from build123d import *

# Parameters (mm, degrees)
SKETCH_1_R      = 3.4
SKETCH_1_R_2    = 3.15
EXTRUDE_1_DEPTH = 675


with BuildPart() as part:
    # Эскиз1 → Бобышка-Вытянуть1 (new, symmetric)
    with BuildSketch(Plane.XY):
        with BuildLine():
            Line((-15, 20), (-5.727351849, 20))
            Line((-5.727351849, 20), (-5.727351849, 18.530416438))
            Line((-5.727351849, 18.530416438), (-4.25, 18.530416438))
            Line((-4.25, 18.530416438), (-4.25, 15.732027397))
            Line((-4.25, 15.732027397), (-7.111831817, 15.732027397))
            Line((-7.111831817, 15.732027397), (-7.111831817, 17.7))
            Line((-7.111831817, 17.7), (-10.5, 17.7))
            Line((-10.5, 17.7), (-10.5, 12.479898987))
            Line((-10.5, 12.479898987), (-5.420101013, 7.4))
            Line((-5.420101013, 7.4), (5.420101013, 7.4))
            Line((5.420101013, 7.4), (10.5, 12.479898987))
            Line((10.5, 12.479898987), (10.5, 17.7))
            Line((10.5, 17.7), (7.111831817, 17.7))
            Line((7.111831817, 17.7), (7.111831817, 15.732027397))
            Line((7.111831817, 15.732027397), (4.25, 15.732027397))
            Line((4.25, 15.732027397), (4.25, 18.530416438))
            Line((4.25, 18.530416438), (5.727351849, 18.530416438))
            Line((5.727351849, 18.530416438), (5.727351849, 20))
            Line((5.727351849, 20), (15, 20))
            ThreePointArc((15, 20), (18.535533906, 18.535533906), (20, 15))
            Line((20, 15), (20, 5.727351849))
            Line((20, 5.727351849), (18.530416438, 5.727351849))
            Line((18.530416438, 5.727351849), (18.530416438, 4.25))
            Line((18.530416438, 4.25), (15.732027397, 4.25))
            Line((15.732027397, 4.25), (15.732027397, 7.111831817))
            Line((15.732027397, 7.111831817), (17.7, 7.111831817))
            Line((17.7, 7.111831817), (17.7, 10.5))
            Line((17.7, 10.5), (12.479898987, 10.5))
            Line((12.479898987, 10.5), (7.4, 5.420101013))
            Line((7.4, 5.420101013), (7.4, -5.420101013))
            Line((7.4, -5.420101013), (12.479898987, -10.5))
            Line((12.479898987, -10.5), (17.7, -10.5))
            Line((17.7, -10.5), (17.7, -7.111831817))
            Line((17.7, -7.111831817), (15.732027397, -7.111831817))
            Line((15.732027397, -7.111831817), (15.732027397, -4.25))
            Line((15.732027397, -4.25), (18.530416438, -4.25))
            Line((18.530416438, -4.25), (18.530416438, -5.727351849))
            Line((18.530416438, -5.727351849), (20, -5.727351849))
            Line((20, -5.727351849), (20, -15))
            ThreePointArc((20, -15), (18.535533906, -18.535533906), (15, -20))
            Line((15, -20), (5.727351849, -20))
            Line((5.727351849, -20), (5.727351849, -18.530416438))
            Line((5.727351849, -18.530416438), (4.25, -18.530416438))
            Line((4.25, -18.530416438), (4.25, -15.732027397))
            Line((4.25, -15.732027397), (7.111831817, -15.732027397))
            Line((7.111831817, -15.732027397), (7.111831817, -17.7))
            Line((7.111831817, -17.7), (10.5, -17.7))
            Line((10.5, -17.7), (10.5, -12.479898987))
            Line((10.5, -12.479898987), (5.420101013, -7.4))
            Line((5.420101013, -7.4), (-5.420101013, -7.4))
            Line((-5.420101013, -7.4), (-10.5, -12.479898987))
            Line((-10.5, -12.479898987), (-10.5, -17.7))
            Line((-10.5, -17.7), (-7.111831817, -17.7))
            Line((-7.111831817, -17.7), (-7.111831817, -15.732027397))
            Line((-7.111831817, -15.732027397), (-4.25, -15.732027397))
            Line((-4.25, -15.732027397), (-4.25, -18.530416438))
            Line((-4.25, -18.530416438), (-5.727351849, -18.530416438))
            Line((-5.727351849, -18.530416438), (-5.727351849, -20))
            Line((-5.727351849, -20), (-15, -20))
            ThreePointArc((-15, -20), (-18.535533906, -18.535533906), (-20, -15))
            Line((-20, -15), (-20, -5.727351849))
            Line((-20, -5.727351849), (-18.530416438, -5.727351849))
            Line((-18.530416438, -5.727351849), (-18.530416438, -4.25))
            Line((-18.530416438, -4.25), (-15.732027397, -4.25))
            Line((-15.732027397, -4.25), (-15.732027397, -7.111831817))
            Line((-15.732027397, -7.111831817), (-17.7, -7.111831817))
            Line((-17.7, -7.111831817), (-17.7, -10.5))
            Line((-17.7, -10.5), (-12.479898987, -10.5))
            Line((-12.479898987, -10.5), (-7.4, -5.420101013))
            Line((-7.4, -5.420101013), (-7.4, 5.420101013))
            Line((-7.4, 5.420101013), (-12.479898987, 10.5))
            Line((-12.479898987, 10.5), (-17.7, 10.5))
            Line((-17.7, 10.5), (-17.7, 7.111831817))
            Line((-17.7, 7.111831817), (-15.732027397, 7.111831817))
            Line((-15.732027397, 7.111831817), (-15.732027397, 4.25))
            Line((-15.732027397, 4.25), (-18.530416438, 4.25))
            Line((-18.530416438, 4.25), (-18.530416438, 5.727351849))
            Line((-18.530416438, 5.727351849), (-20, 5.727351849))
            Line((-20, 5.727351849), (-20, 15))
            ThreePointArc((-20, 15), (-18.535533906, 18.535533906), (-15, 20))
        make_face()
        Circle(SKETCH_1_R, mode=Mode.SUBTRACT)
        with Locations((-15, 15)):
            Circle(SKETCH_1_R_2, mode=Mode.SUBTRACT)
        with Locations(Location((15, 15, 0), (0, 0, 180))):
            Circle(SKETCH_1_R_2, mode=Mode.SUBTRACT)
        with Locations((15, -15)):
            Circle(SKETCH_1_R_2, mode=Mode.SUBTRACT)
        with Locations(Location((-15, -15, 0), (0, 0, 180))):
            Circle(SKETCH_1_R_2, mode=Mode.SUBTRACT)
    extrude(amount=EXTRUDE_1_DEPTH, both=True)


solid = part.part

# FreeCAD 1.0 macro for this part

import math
import FreeCAD as App
import Part
import Sketcher

doc = App.newDocument("Part")
body = doc.addObject("PartDesign::Body", "Body")

# Sketch on XY plane
sketch1 = body.newObject("Sketcher::SketchObject", "Sketch")
sketch1.AttachmentSupport = (doc.getObject("XY_Plane"), [""])
sketch1.MapMode = "FlatFace"
sketch1.addGeometry(Part.LineSegment(App.Vector(-5.7, 20, 0), App.Vector(-15, 20, 0)), False)
sketch1.addGeometry(Part.ArcOfCircle(Part.Circle(App.Vector(-15, 15, 0), App.Vector(0, 0, 1), 5), math.radians(90), math.radians(180)), False)
sketch1.addGeometry(Part.LineSegment(App.Vector(-20, 15, 0), App.Vector(-20, 5.7, 0)), False)
sketch1.addGeometry(Part.LineSegment(App.Vector(-20, 5.7, 0), App.Vector(-18.5, 5.7, 0)), False)
sketch1.addGeometry(Part.LineSegment(App.Vector(-18.5, 5.7, 0), App.Vector(-18.5, 4.2, 0)), False)
sketch1.addGeometry(Part.LineSegment(App.Vector(-18.5, 4.2, 0), App.Vector(-15.7, 4.2, 0)), False)
sketch1.addGeometry(Part.LineSegment(App.Vector(-15.7, 4.2, 0), App.Vector(-15.7, 7.1, 0)), False)
sketch1.addGeometry(Part.LineSegment(App.Vector(-15.7, 7.1, 0), App.Vector(-17.7, 7.1, 0)), False)
sketch1.addGeometry(Part.LineSegment(App.Vector(-17.7, 7.1, 0), App.Vector(-17.7, 10.5, 0)), False)
sketch1.addGeometry(Part.LineSegment(App.Vector(-17.7, 10.5, 0), App.Vector(-12.5, 10.5, 0)), False)
sketch1.addGeometry(Part.LineSegment(App.Vector(-12.5, 10.5, 0), App.Vector(-7.4, 5.4, 0)), False)
sketch1.addGeometry(Part.LineSegment(App.Vector(-7.4, 5.4, 0), App.Vector(-7.4, -5.4, 0)), False)
sketch1.addGeometry(Part.LineSegment(App.Vector(-7.4, -5.4, 0), App.Vector(-12.5, -10.5, 0)), False)
sketch1.addGeometry(Part.LineSegment(App.Vector(-12.5, -10.5, 0), App.Vector(-17.7, -10.5, 0)), False)
sketch1.addGeometry(Part.LineSegment(App.Vector(-17.7, -10.5, 0), App.Vector(-17.7, -7.1, 0)), False)
sketch1.addGeometry(Part.LineSegment(App.Vector(-17.7, -7.1, 0), App.Vector(-15.7, -7.1, 0)), False)
sketch1.addGeometry(Part.LineSegment(App.Vector(-15.7, -7.1, 0), App.Vector(-15.7, -4.2, 0)), False)
sketch1.addGeometry(Part.LineSegment(App.Vector(-15.7, -4.2, 0), App.Vector(-18.5, -4.2, 0)), False)
sketch1.addGeometry(Part.LineSegment(App.Vector(-18.5, -4.2, 0), App.Vector(-18.5, -5.7, 0)), False)
sketch1.addGeometry(Part.LineSegment(App.Vector(-18.5, -5.7, 0), App.Vector(-20, -5.7, 0)), False)
sketch1.addGeometry(Part.LineSegment(App.Vector(-20, -5.7, 0), App.Vector(-20, -15, 0)), False)
sketch1.addGeometry(Part.ArcOfCircle(Part.Circle(App.Vector(-15, -15, 0), App.Vector(0, 0, 1), 5), math.radians(180), math.radians(270)), False)
sketch1.addGeometry(Part.LineSegment(App.Vector(-15, -20, 0), App.Vector(-5.7, -20, 0)), False)
sketch1.addGeometry(Part.LineSegment(App.Vector(-5.7, -20, 0), App.Vector(-5.7, -18.5, 0)), False)
sketch1.addGeometry(Part.LineSegment(App.Vector(-5.7, -18.5, 0), App.Vector(-4.2, -18.5, 0)), False)
sketch1.addGeometry(Part.LineSegment(App.Vector(-4.2, -18.5, 0), App.Vector(-4.2, -15.7, 0)), False)
sketch1.addGeometry(Part.LineSegment(App.Vector(-4.2, -15.7, 0), App.Vector(-7.1, -15.7, 0)), False)
sketch1.addGeometry(Part.LineSegment(App.Vector(-7.1, -15.7, 0), App.Vector(-7.1, -17.7, 0)), False)
sketch1.addGeometry(Part.LineSegment(App.Vector(-7.1, -17.7, 0), App.Vector(-10.5, -17.7, 0)), False)
sketch1.addGeometry(Part.LineSegment(App.Vector(-10.5, -17.7, 0), App.Vector(-10.5, -12.5, 0)), False)
sketch1.addGeometry(Part.LineSegment(App.Vector(-10.5, -12.5, 0), App.Vector(-5.4, -7.4, 0)), False)
sketch1.addGeometry(Part.LineSegment(App.Vector(-5.4, -7.4, 0), App.Vector(5.4, -7.4, 0)), False)
sketch1.addGeometry(Part.LineSegment(App.Vector(5.4, -7.4, 0), App.Vector(10.5, -12.5, 0)), False)
sketch1.addGeometry(Part.LineSegment(App.Vector(10.5, -12.5, 0), App.Vector(10.5, -17.7, 0)), False)
sketch1.addGeometry(Part.LineSegment(App.Vector(10.5, -17.7, 0), App.Vector(7.1, -17.7, 0)), False)
sketch1.addGeometry(Part.LineSegment(App.Vector(7.1, -17.7, 0), App.Vector(7.1, -15.7, 0)), False)
sketch1.addGeometry(Part.LineSegment(App.Vector(7.1, -15.7, 0), App.Vector(4.2, -15.7, 0)), False)
sketch1.addGeometry(Part.LineSegment(App.Vector(4.2, -15.7, 0), App.Vector(4.2, -18.5, 0)), False)
sketch1.addGeometry(Part.LineSegment(App.Vector(4.2, -18.5, 0), App.Vector(5.7, -18.5, 0)), False)
sketch1.addGeometry(Part.LineSegment(App.Vector(5.7, -18.5, 0), App.Vector(5.7, -20, 0)), False)
sketch1.addGeometry(Part.LineSegment(App.Vector(5.7, -20, 0), App.Vector(15, -20, 0)), False)
sketch1.addGeometry(Part.ArcOfCircle(Part.Circle(App.Vector(15, -15, 0), App.Vector(0, 0, 1), 5), math.radians(-90), math.radians(0)), False)
sketch1.addGeometry(Part.LineSegment(App.Vector(20, -15, 0), App.Vector(20, -5.7, 0)), False)
sketch1.addGeometry(Part.LineSegment(App.Vector(20, -5.7, 0), App.Vector(18.5, -5.7, 0)), False)
sketch1.addGeometry(Part.LineSegment(App.Vector(18.5, -5.7, 0), App.Vector(18.5, -4.2, 0)), False)
sketch1.addGeometry(Part.LineSegment(App.Vector(18.5, -4.2, 0), App.Vector(15.7, -4.2, 0)), False)
sketch1.addGeometry(Part.LineSegment(App.Vector(15.7, -4.2, 0), App.Vector(15.7, -7.1, 0)), False)
sketch1.addGeometry(Part.LineSegment(App.Vector(15.7, -7.1, 0), App.Vector(17.7, -7.1, 0)), False)
sketch1.addGeometry(Part.LineSegment(App.Vector(17.7, -7.1, 0), App.Vector(17.7, -10.5, 0)), False)
sketch1.addGeometry(Part.LineSegment(App.Vector(17.7, -10.5, 0), App.Vector(12.5, -10.5, 0)), False)
sketch1.addGeometry(Part.LineSegment(App.Vector(12.5, -10.5, 0), App.Vector(7.4, -5.4, 0)), False)
sketch1.addGeometry(Part.LineSegment(App.Vector(7.4, -5.4, 0), App.Vector(7.4, 5.4, 0)), False)
sketch1.addGeometry(Part.LineSegment(App.Vector(7.4, 5.4, 0), App.Vector(12.5, 10.5, 0)), False)
sketch1.addGeometry(Part.LineSegment(App.Vector(12.5, 10.5, 0), App.Vector(17.7, 10.5, 0)), False)
sketch1.addGeometry(Part.LineSegment(App.Vector(17.7, 10.5, 0), App.Vector(17.7, 7.1, 0)), False)
sketch1.addGeometry(Part.LineSegment(App.Vector(17.7, 7.1, 0), App.Vector(15.7, 7.1, 0)), False)
sketch1.addGeometry(Part.LineSegment(App.Vector(15.7, 7.1, 0), App.Vector(15.7, 4.2, 0)), False)
sketch1.addGeometry(Part.LineSegment(App.Vector(15.7, 4.2, 0), App.Vector(18.5, 4.2, 0)), False)
sketch1.addGeometry(Part.LineSegment(App.Vector(18.5, 4.2, 0), App.Vector(18.5, 5.7, 0)), False)
sketch1.addGeometry(Part.LineSegment(App.Vector(18.5, 5.7, 0), App.Vector(20, 5.7, 0)), False)
sketch1.addGeometry(Part.LineSegment(App.Vector(20, 5.7, 0), App.Vector(20, 15, 0)), False)
sketch1.addGeometry(Part.ArcOfCircle(Part.Circle(App.Vector(15, 15, 0), App.Vector(0, 0, 1), 5), math.radians(0), math.radians(90)), False)
sketch1.addGeometry(Part.LineSegment(App.Vector(15, 20, 0), App.Vector(5.7, 20, 0)), False)
sketch1.addGeometry(Part.LineSegment(App.Vector(5.7, 20, 0), App.Vector(5.7, 18.5, 0)), False)
sketch1.addGeometry(Part.LineSegment(App.Vector(5.7, 18.5, 0), App.Vector(4.2, 18.5, 0)), False)
sketch1.addGeometry(Part.LineSegment(App.Vector(4.2, 18.5, 0), App.Vector(4.2, 15.7, 0)), False)
sketch1.addGeometry(Part.LineSegment(App.Vector(4.2, 15.7, 0), App.Vector(7.1, 15.7, 0)), False)
sketch1.addGeometry(Part.LineSegment(App.Vector(7.1, 15.7, 0), App.Vector(7.1, 17.7, 0)), False)
sketch1.addGeometry(Part.LineSegment(App.Vector(7.1, 17.7, 0), App.Vector(10.5, 17.7, 0)), False)
sketch1.addGeometry(Part.LineSegment(App.Vector(10.5, 17.7, 0), App.Vector(10.5, 12.5, 0)), False)
sketch1.addGeometry(Part.LineSegment(App.Vector(10.5, 12.5, 0), App.Vector(5.4, 7.4, 0)), False)
sketch1.addGeometry(Part.LineSegment(App.Vector(5.4, 7.4, 0), App.Vector(-5.4, 7.4, 0)), False)
sketch1.addGeometry(Part.LineSegment(App.Vector(-5.4, 7.4, 0), App.Vector(-10.5, 12.5, 0)), False)
sketch1.addGeometry(Part.LineSegment(App.Vector(-10.5, 12.5, 0), App.Vector(-10.5, 17.7, 0)), False)
sketch1.addGeometry(Part.LineSegment(App.Vector(-10.5, 17.7, 0), App.Vector(-7.1, 17.7, 0)), False)
sketch1.addGeometry(Part.LineSegment(App.Vector(-7.1, 17.7, 0), App.Vector(-7.1, 15.7, 0)), False)
sketch1.addGeometry(Part.LineSegment(App.Vector(-7.1, 15.7, 0), App.Vector(-4.2, 15.7, 0)), False)
sketch1.addGeometry(Part.LineSegment(App.Vector(-4.2, 15.7, 0), App.Vector(-4.2, 18.5, 0)), False)
sketch1.addGeometry(Part.LineSegment(App.Vector(-4.2, 18.5, 0), App.Vector(-5.7, 18.5, 0)), False)
sketch1.addGeometry(Part.LineSegment(App.Vector(-5.7, 18.5, 0), App.Vector(-5.7, 20, 0)), False)
sketch1.addGeometry(Part.Circle(App.Vector(15, -15, 0), App.Vector(0, 0, 1), 3.1), False)
sketch1.addGeometry(Part.Circle(App.Vector(-15, -15, 0), App.Vector(0, 0, 1), 3.1), False)
sketch1.addGeometry(Part.Circle(App.Vector(15, 15, 0), App.Vector(0, 0, 1), 3.1), False)
sketch1.addGeometry(Part.Circle(App.Vector(0, 0, 0), App.Vector(0, 0, 1), 3.4), False)
sketch1.addGeometry(Part.Circle(App.Vector(-15, 15, 0), App.Vector(0, 0, 1), 3.1), False)
sketch1.addConstraint(Sketcher.Constraint("Tangent", 0, 2, 1, 1))
sketch1.addConstraint(Sketcher.Constraint("Tangent", 1, 2, 2, 1))
sketch1.addConstraint(Sketcher.Constraint("Coincident", 2, 2, 3, 1))
sketch1.addConstraint(Sketcher.Constraint("Coincident", 3, 2, 4, 1))
sketch1.addConstraint(Sketcher.Constraint("Coincident", 4, 2, 5, 1))
sketch1.addConstraint(Sketcher.Constraint("Coincident", 5, 2, 6, 1))
sketch1.addConstraint(Sketcher.Constraint("Coincident", 6, 2, 7, 1))
sketch1.addConstraint(Sketcher.Constraint("Coincident", 7, 2, 8, 1))
sketch1.addConstraint(Sketcher.Constraint("Coincident", 8, 2, 9, 1))
sketch1.addConstraint(Sketcher.Constraint("Coincident", 9, 2, 10, 1))
sketch1.addConstraint(Sketcher.Constraint("Coincident", 10, 2, 11, 1))
sketch1.addConstraint(Sketcher.Constraint("Coincident", 11, 2, 12, 1))
sketch1.addConstraint(Sketcher.Constraint("Coincident", 12, 2, 13, 1))
sketch1.addConstraint(Sketcher.Constraint("Coincident", 13, 2, 14, 1))
sketch1.addConstraint(Sketcher.Constraint("Coincident", 14, 2, 15, 1))
sketch1.addConstraint(Sketcher.Constraint("Coincident", 15, 2, 16, 1))
sketch1.addConstraint(Sketcher.Constraint("Coincident", 16, 2, 17, 1))
sketch1.addConstraint(Sketcher.Constraint("Coincident", 17, 2, 18, 1))
sketch1.addConstraint(Sketcher.Constraint("Coincident", 18, 2, 19, 1))
sketch1.addConstraint(Sketcher.Constraint("Coincident", 19, 2, 20, 1))
sketch1.addConstraint(Sketcher.Constraint("Tangent", 20, 2, 21, 1))
sketch1.addConstraint(Sketcher.Constraint("Tangent", 21, 2, 22, 1))
sketch1.addConstraint(Sketcher.Constraint("Coincident", 22, 2, 23, 1))
sketch1.addConstraint(Sketcher.Constraint("Coincident", 23, 2, 24, 1))
sketch1.addConstraint(Sketcher.Constraint("Coincident", 24, 2, 25, 1))
sketch1.addConstraint(Sketcher.Constraint("Coincident", 25, 2, 26, 1))
sketch1.addConstraint(Sketcher.Constraint("Coincident", 26, 2, 27, 1))
sketch1.addConstraint(Sketcher.Constraint("Coincident", 27, 2, 28, 1))
sketch1.addConstraint(Sketcher.Constraint("Coincident", 28, 2, 29, 1))
sketch1.addConstraint(Sketcher.Constraint("Coincident", 29, 2, 30, 1))
sketch1.addConstraint(Sketcher.Constraint("Coincident", 30, 2, 31, 1))
sketch1.addConstraint(Sketcher.Constraint("Coincident", 31, 2, 32, 1))
sketch1.addConstraint(Sketcher.Constraint("Coincident", 32, 2, 33, 1))
sketch1.addConstraint(Sketcher.Constraint("Coincident", 33, 2, 34, 1))
sketch1.addConstraint(Sketcher.Constraint("Coincident", 34, 2, 35, 1))
sketch1.addConstraint(Sketcher.Constraint("Coincident", 35, 2, 36, 1))
sketch1.addConstraint(Sketcher.Constraint("Coincident", 36, 2, 37, 1))
sketch1.addConstraint(Sketcher.Constraint("Coincident", 37, 2, 38, 1))
sketch1.addConstraint(Sketcher.Constraint("Coincident", 38, 2, 39, 1))
sketch1.addConstraint(Sketcher.Constraint("Coincident", 39, 2, 40, 1))
sketch1.addConstraint(Sketcher.Constraint("Tangent", 40, 2, 41, 1))
sketch1.addConstraint(Sketcher.Constraint("Tangent", 41, 2, 42, 1))
sketch1.addConstraint(Sketcher.Constraint("Coincident", 42, 2, 43, 1))
sketch1.addConstraint(Sketcher.Constraint("Coincident", 43, 2, 44, 1))
sketch1.addConstraint(Sketcher.Constraint("Coincident", 44, 2, 45, 1))
sketch1.addConstraint(Sketcher.Constraint("Coincident", 45, 2, 46, 1))
sketch1.addConstraint(Sketcher.Constraint("Coincident", 46, 2, 47, 1))
sketch1.addConstraint(Sketcher.Constraint("Coincident", 47, 2, 48, 1))
sketch1.addConstraint(Sketcher.Constraint("Coincident", 48, 2, 49, 1))
sketch1.addConstraint(Sketcher.Constraint("Coincident", 49, 2, 50, 1))
sketch1.addConstraint(Sketcher.Constraint("Coincident", 50, 2, 51, 1))
sketch1.addConstraint(Sketcher.Constraint("Coincident", 51, 2, 52, 1))
sketch1.addConstraint(Sketcher.Constraint("Coincident", 52, 2, 53, 1))
sketch1.addConstraint(Sketcher.Constraint("Coincident", 53, 2, 54, 1))
sketch1.addConstraint(Sketcher.Constraint("Coincident", 54, 2, 55, 1))
sketch1.addConstraint(Sketcher.Constraint("Coincident", 55, 2, 56, 1))
sketch1.addConstraint(Sketcher.Constraint("Coincident", 56, 2, 57, 1))
sketch1.addConstraint(Sketcher.Constraint("Coincident", 57, 2, 58, 1))
sketch1.addConstraint(Sketcher.Constraint("Coincident", 58, 2, 59, 1))
sketch1.addConstraint(Sketcher.Constraint("Coincident", 59, 2, 60, 1))
sketch1.addConstraint(Sketcher.Constraint("Tangent", 60, 2, 61, 1))
sketch1.addConstraint(Sketcher.Constraint("Tangent", 61, 2, 62, 1))
sketch1.addConstraint(Sketcher.Constraint("Coincident", 62, 2, 63, 1))
sketch1.addConstraint(Sketcher.Constraint("Coincident", 63, 2, 64, 1))
sketch1.addConstraint(Sketcher.Constraint("Coincident", 64, 2, 65, 1))
sketch1.addConstraint(Sketcher.Constraint("Coincident", 65, 2, 66, 1))
sketch1.addConstraint(Sketcher.Constraint("Coincident", 66, 2, 67, 1))
sketch1.addConstraint(Sketcher.Constraint("Coincident", 67, 2, 68, 1))
sketch1.addConstraint(Sketcher.Constraint("Coincident", 68, 2, 69, 1))
sketch1.addConstraint(Sketcher.Constraint("Coincident", 69, 2, 70, 1))
sketch1.addConstraint(Sketcher.Constraint("Coincident", 70, 2, 71, 1))
sketch1.addConstraint(Sketcher.Constraint("Coincident", 71, 2, 72, 1))
sketch1.addConstraint(Sketcher.Constraint("Coincident", 72, 2, 73, 1))
sketch1.addConstraint(Sketcher.Constraint("Coincident", 73, 2, 74, 1))
sketch1.addConstraint(Sketcher.Constraint("Coincident", 74, 2, 75, 1))
sketch1.addConstraint(Sketcher.Constraint("Coincident", 75, 2, 76, 1))
sketch1.addConstraint(Sketcher.Constraint("Coincident", 76, 2, 77, 1))
sketch1.addConstraint(Sketcher.Constraint("Coincident", 77, 2, 78, 1))
sketch1.addConstraint(Sketcher.Constraint("Coincident", 78, 2, 79, 1))
sketch1.addConstraint(Sketcher.Constraint("Coincident", 79, 2, 0, 1))
sketch1.addConstraint(Sketcher.Constraint("Horizontal", 0))
sketch1.addConstraint(Sketcher.Constraint("Vertical", 2))
sketch1.addConstraint(Sketcher.Constraint("Horizontal", 3))
sketch1.addConstraint(Sketcher.Constraint("Vertical", 4))
sketch1.addConstraint(Sketcher.Constraint("Horizontal", 5))
sketch1.addConstraint(Sketcher.Constraint("Vertical", 6))
sketch1.addConstraint(Sketcher.Constraint("Horizontal", 7))
sketch1.addConstraint(Sketcher.Constraint("Vertical", 8))
sketch1.addConstraint(Sketcher.Constraint("Horizontal", 9))
sketch1.addConstraint(Sketcher.Constraint("Vertical", 11))
sketch1.addConstraint(Sketcher.Constraint("Horizontal", 13))
sketch1.addConstraint(Sketcher.Constraint("Vertical", 14))
sketch1.addConstraint(Sketcher.Constraint("Horizontal", 15))
sketch1.addConstraint(Sketcher.Constraint("Vertical", 16))
sketch1.addConstraint(Sketcher.Constraint("Horizontal", 17))
sketch1.addConstraint(Sketcher.Constraint("Vertical", 18))
sketch1.addConstraint(Sketcher.Constraint("Horizontal", 19))
sketch1.addConstraint(Sketcher.Constraint("Vertical", 20))
sketch1.addConstraint(Sketcher.Constraint("Horizontal", 22))
sketch1.addConstraint(Sketcher.Constraint("Vertical", 23))
sketch1.addConstraint(Sketcher.Constraint("Horizontal", 24))
sketch1.addConstraint(Sketcher.Constraint("Vertical", 25))
sketch1.addConstraint(Sketcher.Constraint("Horizontal", 26))
sketch1.addConstraint(Sketcher.Constraint("Vertical", 27))
sketch1.addConstraint(Sketcher.Constraint("Horizontal", 28))
sketch1.addConstraint(Sketcher.Constraint("Vertical", 29))
sketch1.addConstraint(Sketcher.Constraint("Horizontal", 31))
sketch1.addConstraint(Sketcher.Constraint("Vertical", 33))
sketch1.addConstraint(Sketcher.Constraint("Horizontal", 34))
sketch1.addConstraint(Sketcher.Constraint("Vertical", 35))
sketch1.addConstraint(Sketcher.Constraint("Horizontal", 36))
sketch1.addConstraint(Sketcher.Constraint("Vertical", 37))
sketch1.addConstraint(Sketcher.Constraint("Horizontal", 38))
sketch1.addConstraint(Sketcher.Constraint("Vertical", 39))
sketch1.addConstraint(Sketcher.Constraint("Horizontal", 40))
sketch1.addConstraint(Sketcher.Constraint("Vertical", 42))
sketch1.addConstraint(Sketcher.Constraint("Horizontal", 43))
sketch1.addConstraint(Sketcher.Constraint("Vertical", 44))
sketch1.addConstraint(Sketcher.Constraint("Horizontal", 45))
sketch1.addConstraint(Sketcher.Constraint("Vertical", 46))
sketch1.addConstraint(Sketcher.Constraint("Horizontal", 47))
sketch1.addConstraint(Sketcher.Constraint("Vertical", 48))
sketch1.addConstraint(Sketcher.Constraint("Horizontal", 49))
sketch1.addConstraint(Sketcher.Constraint("Vertical", 51))
sketch1.addConstraint(Sketcher.Constraint("Horizontal", 53))
sketch1.addConstraint(Sketcher.Constraint("Vertical", 54))
sketch1.addConstraint(Sketcher.Constraint("Horizontal", 55))
sketch1.addConstraint(Sketcher.Constraint("Vertical", 56))
sketch1.addConstraint(Sketcher.Constraint("Horizontal", 57))
sketch1.addConstraint(Sketcher.Constraint("Vertical", 58))
sketch1.addConstraint(Sketcher.Constraint("Horizontal", 59))
sketch1.addConstraint(Sketcher.Constraint("Vertical", 60))
sketch1.addConstraint(Sketcher.Constraint("Horizontal", 62))
sketch1.addConstraint(Sketcher.Constraint("Vertical", 63))
sketch1.addConstraint(Sketcher.Constraint("Horizontal", 64))
sketch1.addConstraint(Sketcher.Constraint("Vertical", 65))
sketch1.addConstraint(Sketcher.Constraint("Horizontal", 66))
sketch1.addConstraint(Sketcher.Constraint("Vertical", 67))
sketch1.addConstraint(Sketcher.Constraint("Horizontal", 68))
sketch1.addConstraint(Sketcher.Constraint("Vertical", 69))
sketch1.addConstraint(Sketcher.Constraint("Horizontal", 71))
sketch1.addConstraint(Sketcher.Constraint("Vertical", 73))
sketch1.addConstraint(Sketcher.Constraint("Horizontal", 74))
sketch1.addConstraint(Sketcher.Constraint("Vertical", 75))
sketch1.addConstraint(Sketcher.Constraint("Horizontal", 76))
sketch1.addConstraint(Sketcher.Constraint("Vertical", 77))
sketch1.addConstraint(Sketcher.Constraint("Horizontal", 78))
sketch1.addConstraint(Sketcher.Constraint("Vertical", 79))
sketch1.addConstraint(Sketcher.Constraint("Coincident", 83, 3, -1, 1))
sketch1.addConstraint(Sketcher.Constraint("Coincident", 80, 3, 41, 3))
sketch1.addConstraint(Sketcher.Constraint("Coincident", 81, 3, 21, 3))
sketch1.addConstraint(Sketcher.Constraint("Coincident", 82, 3, 61, 3))
sketch1.addConstraint(Sketcher.Constraint("Coincident", 84, 3, 1, 3))
sketch1.addConstraint(Sketcher.Constraint("Equal", 1, 21))
sketch1.addConstraint(Sketcher.Constraint("Equal", 21, 41))
sketch1.addConstraint(Sketcher.Constraint("Equal", 41, 61))
sketch1.addConstraint(Sketcher.Constraint("Equal", 80, 81))
sketch1.addConstraint(Sketcher.Constraint("Equal", 81, 82))
sketch1.addConstraint(Sketcher.Constraint("Equal", 82, 84))
sketch1.addConstraint(Sketcher.Constraint("Symmetric", 1, 3, 41, 3, -1, 1))
sketch1.addConstraint(Sketcher.Constraint("Symmetric", 21, 3, 61, 3, -1, 1))
sketch1.addConstraint(Sketcher.Constraint("Symmetric", 3, 2, 43, 2, -1, 1))
sketch1.addConstraint(Sketcher.Constraint("Symmetric", 5, 2, 45, 2, -1, 1))
sketch1.addConstraint(Sketcher.Constraint("Symmetric", 7, 2, 47, 2, -1, 1))
sketch1.addConstraint(Sketcher.Constraint("Symmetric", 9, 2, 49, 2, -1, 1))
sketch1.addConstraint(Sketcher.Constraint("Symmetric", 10, 2, 50, 2, -1, 1))
sketch1.addConstraint(Sketcher.Constraint("Symmetric", 12, 2, 52, 2, -1, 1))
sketch1.addConstraint(Sketcher.Constraint("Symmetric", 14, 2, 54, 2, -1, 1))
sketch1.addConstraint(Sketcher.Constraint("Symmetric", 16, 2, 56, 2, -1, 1))
sketch1.addConstraint(Sketcher.Constraint("Symmetric", 18, 2, 58, 2, -1, 1))
sketch1.addConstraint(Sketcher.Constraint("Symmetric", 23, 2, 63, 2, -1, 1))
sketch1.addConstraint(Sketcher.Constraint("Symmetric", 25, 2, 65, 2, -1, 1))
sketch1.addConstraint(Sketcher.Constraint("Symmetric", 27, 2, 67, 2, -1, 1))
sketch1.addConstraint(Sketcher.Constraint("Symmetric", 29, 2, 69, 2, -1, 1))
sketch1.addConstraint(Sketcher.Constraint("Symmetric", 30, 2, 70, 2, -1, 1))
sketch1.addConstraint(Sketcher.Constraint("Symmetric", 32, 2, 72, 2, -1, 1))
sketch1.addConstraint(Sketcher.Constraint("Symmetric", 34, 2, 74, 2, -1, 1))
sketch1.addConstraint(Sketcher.Constraint("Symmetric", 36, 2, 76, 2, -1, 1))
sketch1.addConstraint(Sketcher.Constraint("Symmetric", 38, 2, 78, 2, -1, 1))
sketch1.addConstraint(Sketcher.Constraint("Symmetric", 21, 3, 41, 3, -2))
sketch1.addConstraint(Sketcher.Constraint("Symmetric", 29, 2, 32, 2, -2))
sketch1.addConstraint(Sketcher.Constraint("Symmetric", 27, 2, 34, 2, -2))
sketch1.addConstraint(Sketcher.Constraint("Symmetric", 25, 2, 36, 2, -2))
sketch1.addConstraint(Sketcher.Constraint("Symmetric", 23, 2, 38, 2, -2))
sketch1.addConstraint(Sketcher.Constraint("Symmetric", 18, 2, 43, 2, -2))
sketch1.addConstraint(Sketcher.Constraint("Symmetric", 16, 2, 45, 2, -2))
sketch1.addConstraint(Sketcher.Constraint("Symmetric", 14, 2, 47, 2, -2))
sketch1.addConstraint(Sketcher.Constraint("Symmetric", 12, 2, 49, 2, -2))
sketch1.addConstraint(Sketcher.Constraint("Perpendicular", 10, 12))
sketch1.addConstraint(Sketcher.Constraint("Parallel", 12, 30))
sketch1.addConstraint(Sketcher.Constraint("Perpendicular", 30, 32))
sketch1.addConstraint(Sketcher.Constraint("Perpendicular", 50, 52))
sketch1.addConstraint(Sketcher.Constraint("Perpendicular", 70, 72))
sketch1.addConstraint(Sketcher.Constraint("Horizontal", 11, 2, 50, 2))
sketch1.addConstraint(Sketcher.Constraint("Equal", 62, 2))
sketch1.addConstraint(Sketcher.Constraint("Equal", 78, 4))
sketch1.addConstraint(Sketcher.Constraint("Equal", 76, 6))
sketch1.addConstraint(Sketcher.Constraint("Equal", 74, 8))
sketch1.addConstraint(Sketcher.Constraint("Equal", 71, 11))
sketch1.addConstraint(Sketcher.Constraint("Equal", 59, 23))
sketch1.addConstraint(Sketcher.Constraint("Equal", 57, 25))
sketch1.addConstraint(Sketcher.Constraint("Equal", 55, 27))
sketch1.addConstraint(Sketcher.Constraint("Equal", 53, 29))
sketch1.addConstraint(Sketcher.Constraint("Equal", 12, 30))
sketch1.addConstraint(Sketcher.Constraint("Radius", 1, 5.0))
sketch1.addConstraint(Sketcher.Constraint("Diameter", 80, 6.3))
sketch1.addConstraint(Sketcher.Constraint("Diameter", 83, 6.8))
sketch1.addConstraint(Sketcher.Constraint("DistanceX", 1, 3, -1, 1, 15.0))
sketch1.addConstraint(Sketcher.Constraint("DistanceX", 7, 2, -1, 1, 17.7))
sketch1.addConstraint(Sketcher.Constraint("DistanceY", -1, 1, 8, 2, 10.5))
sketch1.addConstraint(Sketcher.Constraint("DistanceX", 10, 2, -1, 1, 7.4))
sketch1.addConstraint(Sketcher.Constraint("DistanceY", -1, 1, 4, 2, 4.25))
sketch1.addConstraint(Sketcher.Constraint("DistanceX", 9, 1, 9, 2, 5.220101))
sketch1.addConstraint(Sketcher.Constraint("DistanceX", 0, 2, 0, 1, 9.272648))
sketch1.addConstraint(Sketcher.Constraint("DistanceX", 5, 1, 5, 2, 2.798389))
sketch1.addConstraint(Sketcher.Constraint("DistanceX", 26, 2, 26, 1, 2.861832))
sketch1.addConstraint(Sketcher.Constraint("DistanceX", 3, 1, 3, 2, 1.469584))
pad1 = body.newObject("PartDesign::Pad", "Pad")
pad1.Profile = sketch1
pad1.Length = 1350
pad1.Midplane = True

doc.recompute()
